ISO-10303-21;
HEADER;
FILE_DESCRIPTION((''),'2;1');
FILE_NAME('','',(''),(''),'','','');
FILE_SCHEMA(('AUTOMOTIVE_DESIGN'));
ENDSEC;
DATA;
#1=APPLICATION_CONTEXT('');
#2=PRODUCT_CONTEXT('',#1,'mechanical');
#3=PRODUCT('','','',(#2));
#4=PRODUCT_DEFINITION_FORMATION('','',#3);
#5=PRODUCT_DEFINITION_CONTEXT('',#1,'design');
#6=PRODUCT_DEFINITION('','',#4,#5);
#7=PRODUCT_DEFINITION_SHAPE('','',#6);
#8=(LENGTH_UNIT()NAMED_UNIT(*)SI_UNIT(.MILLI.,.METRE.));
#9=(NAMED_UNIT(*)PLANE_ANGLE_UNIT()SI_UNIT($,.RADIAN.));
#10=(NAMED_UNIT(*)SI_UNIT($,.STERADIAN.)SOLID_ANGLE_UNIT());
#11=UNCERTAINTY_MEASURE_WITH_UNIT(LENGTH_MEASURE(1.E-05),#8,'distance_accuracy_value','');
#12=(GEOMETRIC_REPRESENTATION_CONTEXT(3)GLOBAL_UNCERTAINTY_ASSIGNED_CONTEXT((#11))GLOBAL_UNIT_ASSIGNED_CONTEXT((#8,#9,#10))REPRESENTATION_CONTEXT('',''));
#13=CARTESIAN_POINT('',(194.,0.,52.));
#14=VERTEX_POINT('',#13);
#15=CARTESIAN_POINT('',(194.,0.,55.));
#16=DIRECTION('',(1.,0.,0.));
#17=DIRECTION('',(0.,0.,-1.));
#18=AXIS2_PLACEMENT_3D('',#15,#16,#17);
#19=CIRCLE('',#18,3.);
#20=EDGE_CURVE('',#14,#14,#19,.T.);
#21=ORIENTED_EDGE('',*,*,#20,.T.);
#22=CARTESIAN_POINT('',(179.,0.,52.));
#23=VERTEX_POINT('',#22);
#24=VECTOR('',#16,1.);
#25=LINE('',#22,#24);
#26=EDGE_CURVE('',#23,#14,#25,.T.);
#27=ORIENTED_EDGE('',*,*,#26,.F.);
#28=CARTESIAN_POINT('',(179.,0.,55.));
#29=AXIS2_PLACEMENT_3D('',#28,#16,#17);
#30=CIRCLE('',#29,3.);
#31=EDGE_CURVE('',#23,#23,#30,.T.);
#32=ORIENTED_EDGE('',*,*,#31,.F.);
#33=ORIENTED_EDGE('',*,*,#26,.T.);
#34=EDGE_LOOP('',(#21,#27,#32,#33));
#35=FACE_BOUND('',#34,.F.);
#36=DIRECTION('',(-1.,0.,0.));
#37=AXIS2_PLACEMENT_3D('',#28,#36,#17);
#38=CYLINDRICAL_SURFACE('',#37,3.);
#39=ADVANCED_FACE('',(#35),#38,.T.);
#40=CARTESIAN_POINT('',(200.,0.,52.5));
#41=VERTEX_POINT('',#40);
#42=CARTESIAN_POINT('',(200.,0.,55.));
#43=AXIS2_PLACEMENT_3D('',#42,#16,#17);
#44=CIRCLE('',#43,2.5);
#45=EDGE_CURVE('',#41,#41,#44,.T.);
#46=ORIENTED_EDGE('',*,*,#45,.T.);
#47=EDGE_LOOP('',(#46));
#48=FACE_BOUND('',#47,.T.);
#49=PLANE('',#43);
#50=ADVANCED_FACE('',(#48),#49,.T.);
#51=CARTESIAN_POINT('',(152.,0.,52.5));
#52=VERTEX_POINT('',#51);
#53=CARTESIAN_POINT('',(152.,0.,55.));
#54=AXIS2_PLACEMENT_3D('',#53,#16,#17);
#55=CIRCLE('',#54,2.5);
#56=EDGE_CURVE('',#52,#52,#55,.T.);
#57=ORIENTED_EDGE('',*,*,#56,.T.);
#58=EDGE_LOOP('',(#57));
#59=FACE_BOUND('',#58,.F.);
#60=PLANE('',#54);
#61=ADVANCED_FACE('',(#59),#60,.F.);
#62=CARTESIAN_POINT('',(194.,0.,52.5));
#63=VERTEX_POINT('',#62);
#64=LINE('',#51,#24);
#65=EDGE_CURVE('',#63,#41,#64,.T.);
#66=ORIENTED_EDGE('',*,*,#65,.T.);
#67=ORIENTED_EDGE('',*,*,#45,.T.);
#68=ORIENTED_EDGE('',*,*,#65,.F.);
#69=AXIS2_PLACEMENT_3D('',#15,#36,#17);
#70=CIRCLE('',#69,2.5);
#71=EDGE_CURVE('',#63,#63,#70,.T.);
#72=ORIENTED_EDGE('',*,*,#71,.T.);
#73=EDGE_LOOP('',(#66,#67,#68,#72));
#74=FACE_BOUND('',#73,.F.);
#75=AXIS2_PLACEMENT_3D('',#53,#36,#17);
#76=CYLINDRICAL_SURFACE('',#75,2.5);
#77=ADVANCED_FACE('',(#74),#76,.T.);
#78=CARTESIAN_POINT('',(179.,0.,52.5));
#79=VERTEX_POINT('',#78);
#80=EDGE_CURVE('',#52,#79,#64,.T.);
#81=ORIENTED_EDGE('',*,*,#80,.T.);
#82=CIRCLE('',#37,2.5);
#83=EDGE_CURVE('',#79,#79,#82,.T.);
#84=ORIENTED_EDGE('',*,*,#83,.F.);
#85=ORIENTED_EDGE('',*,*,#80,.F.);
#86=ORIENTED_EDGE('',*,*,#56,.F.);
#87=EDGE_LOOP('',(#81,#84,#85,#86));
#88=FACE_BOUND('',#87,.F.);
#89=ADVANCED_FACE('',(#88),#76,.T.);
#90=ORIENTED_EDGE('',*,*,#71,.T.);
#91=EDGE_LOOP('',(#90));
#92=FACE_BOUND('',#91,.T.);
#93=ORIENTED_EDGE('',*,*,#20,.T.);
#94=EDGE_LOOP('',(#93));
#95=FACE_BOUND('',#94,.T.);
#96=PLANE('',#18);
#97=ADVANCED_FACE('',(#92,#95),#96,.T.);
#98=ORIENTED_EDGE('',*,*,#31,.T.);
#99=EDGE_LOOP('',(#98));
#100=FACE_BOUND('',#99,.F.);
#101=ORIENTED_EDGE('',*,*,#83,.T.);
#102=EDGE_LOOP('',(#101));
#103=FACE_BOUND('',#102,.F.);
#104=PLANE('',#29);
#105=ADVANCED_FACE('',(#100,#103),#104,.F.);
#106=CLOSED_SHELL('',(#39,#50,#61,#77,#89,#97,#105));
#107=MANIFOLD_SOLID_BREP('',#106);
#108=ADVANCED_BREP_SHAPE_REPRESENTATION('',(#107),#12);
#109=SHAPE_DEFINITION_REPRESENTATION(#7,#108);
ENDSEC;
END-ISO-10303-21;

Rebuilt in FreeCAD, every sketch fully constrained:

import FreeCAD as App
import Part
import Sketcher

doc = App.newDocument("Part")
body = doc.addObject("PartDesign::Body", "Body")

sketch1 = body.newObject("Sketcher::SketchObject", "Sketch")
sketch1.AttachmentSupport = (doc.getObject("YZ_Plane"), [""])
sketch1.MapMode = "FlatFace"
sketch1.AttachmentOffset = App.Placement(App.Vector(0, 0, 152), App.Rotation())
sketch1.addGeometry(Part.Circle(App.Vector(0, 55, 0), App.Vector(0, 0, 1), 2.5), False)
sketch1.addConstraint(Sketcher.Constraint("PointOnObject", 0, 3, -2))
sketch1.addConstraint(Sketcher.Constraint("Diameter", 0, 5.0))
sketch1.addConstraint(Sketcher.Constraint("DistanceY", -1, 1, 0, 3, 55.0))
pad1 = body.newObject("PartDesign::Pad", "Pad")
pad1.Profile = sketch1
pad1.Length = 48
body2 = doc.addObject("PartDesign::Body", "Body001")

sketch2 = body2.newObject("Sketcher::SketchObject", "Sketch001")
sketch2.AttachmentSupport = (doc.getObject("YZ_Plane001"), [""])
sketch2.MapMode = "FlatFace"
sketch2.AttachmentOffset = App.Placement(App.Vector(0, 0, 179), App.Rotation())
sketch2.addGeometry(Part.Circle(App.Vector(0, 55, 0), App.Vector(0, 0, 1), 3), False)
sketch2.addConstraint(Sketcher.Constraint("PointOnObject", 0, 3, -2))
sketch2.addConstraint(Sketcher.Constraint("Diameter", 0, 6.0))
sketch2.addConstraint(Sketcher.Constraint("DistanceY", -1, 1, 0, 3, 55.0))
pad2 = body2.newObject("PartDesign::Pad", "Pad001")
pad2.Profile = sketch2
pad2.Length = 15
doc.recompute()

boolean = body2.newObject("PartDesign::Boolean", "Boolean")
boolean.Type = "Fuse"
boolean.addObjects([body])

doc.recompute()
